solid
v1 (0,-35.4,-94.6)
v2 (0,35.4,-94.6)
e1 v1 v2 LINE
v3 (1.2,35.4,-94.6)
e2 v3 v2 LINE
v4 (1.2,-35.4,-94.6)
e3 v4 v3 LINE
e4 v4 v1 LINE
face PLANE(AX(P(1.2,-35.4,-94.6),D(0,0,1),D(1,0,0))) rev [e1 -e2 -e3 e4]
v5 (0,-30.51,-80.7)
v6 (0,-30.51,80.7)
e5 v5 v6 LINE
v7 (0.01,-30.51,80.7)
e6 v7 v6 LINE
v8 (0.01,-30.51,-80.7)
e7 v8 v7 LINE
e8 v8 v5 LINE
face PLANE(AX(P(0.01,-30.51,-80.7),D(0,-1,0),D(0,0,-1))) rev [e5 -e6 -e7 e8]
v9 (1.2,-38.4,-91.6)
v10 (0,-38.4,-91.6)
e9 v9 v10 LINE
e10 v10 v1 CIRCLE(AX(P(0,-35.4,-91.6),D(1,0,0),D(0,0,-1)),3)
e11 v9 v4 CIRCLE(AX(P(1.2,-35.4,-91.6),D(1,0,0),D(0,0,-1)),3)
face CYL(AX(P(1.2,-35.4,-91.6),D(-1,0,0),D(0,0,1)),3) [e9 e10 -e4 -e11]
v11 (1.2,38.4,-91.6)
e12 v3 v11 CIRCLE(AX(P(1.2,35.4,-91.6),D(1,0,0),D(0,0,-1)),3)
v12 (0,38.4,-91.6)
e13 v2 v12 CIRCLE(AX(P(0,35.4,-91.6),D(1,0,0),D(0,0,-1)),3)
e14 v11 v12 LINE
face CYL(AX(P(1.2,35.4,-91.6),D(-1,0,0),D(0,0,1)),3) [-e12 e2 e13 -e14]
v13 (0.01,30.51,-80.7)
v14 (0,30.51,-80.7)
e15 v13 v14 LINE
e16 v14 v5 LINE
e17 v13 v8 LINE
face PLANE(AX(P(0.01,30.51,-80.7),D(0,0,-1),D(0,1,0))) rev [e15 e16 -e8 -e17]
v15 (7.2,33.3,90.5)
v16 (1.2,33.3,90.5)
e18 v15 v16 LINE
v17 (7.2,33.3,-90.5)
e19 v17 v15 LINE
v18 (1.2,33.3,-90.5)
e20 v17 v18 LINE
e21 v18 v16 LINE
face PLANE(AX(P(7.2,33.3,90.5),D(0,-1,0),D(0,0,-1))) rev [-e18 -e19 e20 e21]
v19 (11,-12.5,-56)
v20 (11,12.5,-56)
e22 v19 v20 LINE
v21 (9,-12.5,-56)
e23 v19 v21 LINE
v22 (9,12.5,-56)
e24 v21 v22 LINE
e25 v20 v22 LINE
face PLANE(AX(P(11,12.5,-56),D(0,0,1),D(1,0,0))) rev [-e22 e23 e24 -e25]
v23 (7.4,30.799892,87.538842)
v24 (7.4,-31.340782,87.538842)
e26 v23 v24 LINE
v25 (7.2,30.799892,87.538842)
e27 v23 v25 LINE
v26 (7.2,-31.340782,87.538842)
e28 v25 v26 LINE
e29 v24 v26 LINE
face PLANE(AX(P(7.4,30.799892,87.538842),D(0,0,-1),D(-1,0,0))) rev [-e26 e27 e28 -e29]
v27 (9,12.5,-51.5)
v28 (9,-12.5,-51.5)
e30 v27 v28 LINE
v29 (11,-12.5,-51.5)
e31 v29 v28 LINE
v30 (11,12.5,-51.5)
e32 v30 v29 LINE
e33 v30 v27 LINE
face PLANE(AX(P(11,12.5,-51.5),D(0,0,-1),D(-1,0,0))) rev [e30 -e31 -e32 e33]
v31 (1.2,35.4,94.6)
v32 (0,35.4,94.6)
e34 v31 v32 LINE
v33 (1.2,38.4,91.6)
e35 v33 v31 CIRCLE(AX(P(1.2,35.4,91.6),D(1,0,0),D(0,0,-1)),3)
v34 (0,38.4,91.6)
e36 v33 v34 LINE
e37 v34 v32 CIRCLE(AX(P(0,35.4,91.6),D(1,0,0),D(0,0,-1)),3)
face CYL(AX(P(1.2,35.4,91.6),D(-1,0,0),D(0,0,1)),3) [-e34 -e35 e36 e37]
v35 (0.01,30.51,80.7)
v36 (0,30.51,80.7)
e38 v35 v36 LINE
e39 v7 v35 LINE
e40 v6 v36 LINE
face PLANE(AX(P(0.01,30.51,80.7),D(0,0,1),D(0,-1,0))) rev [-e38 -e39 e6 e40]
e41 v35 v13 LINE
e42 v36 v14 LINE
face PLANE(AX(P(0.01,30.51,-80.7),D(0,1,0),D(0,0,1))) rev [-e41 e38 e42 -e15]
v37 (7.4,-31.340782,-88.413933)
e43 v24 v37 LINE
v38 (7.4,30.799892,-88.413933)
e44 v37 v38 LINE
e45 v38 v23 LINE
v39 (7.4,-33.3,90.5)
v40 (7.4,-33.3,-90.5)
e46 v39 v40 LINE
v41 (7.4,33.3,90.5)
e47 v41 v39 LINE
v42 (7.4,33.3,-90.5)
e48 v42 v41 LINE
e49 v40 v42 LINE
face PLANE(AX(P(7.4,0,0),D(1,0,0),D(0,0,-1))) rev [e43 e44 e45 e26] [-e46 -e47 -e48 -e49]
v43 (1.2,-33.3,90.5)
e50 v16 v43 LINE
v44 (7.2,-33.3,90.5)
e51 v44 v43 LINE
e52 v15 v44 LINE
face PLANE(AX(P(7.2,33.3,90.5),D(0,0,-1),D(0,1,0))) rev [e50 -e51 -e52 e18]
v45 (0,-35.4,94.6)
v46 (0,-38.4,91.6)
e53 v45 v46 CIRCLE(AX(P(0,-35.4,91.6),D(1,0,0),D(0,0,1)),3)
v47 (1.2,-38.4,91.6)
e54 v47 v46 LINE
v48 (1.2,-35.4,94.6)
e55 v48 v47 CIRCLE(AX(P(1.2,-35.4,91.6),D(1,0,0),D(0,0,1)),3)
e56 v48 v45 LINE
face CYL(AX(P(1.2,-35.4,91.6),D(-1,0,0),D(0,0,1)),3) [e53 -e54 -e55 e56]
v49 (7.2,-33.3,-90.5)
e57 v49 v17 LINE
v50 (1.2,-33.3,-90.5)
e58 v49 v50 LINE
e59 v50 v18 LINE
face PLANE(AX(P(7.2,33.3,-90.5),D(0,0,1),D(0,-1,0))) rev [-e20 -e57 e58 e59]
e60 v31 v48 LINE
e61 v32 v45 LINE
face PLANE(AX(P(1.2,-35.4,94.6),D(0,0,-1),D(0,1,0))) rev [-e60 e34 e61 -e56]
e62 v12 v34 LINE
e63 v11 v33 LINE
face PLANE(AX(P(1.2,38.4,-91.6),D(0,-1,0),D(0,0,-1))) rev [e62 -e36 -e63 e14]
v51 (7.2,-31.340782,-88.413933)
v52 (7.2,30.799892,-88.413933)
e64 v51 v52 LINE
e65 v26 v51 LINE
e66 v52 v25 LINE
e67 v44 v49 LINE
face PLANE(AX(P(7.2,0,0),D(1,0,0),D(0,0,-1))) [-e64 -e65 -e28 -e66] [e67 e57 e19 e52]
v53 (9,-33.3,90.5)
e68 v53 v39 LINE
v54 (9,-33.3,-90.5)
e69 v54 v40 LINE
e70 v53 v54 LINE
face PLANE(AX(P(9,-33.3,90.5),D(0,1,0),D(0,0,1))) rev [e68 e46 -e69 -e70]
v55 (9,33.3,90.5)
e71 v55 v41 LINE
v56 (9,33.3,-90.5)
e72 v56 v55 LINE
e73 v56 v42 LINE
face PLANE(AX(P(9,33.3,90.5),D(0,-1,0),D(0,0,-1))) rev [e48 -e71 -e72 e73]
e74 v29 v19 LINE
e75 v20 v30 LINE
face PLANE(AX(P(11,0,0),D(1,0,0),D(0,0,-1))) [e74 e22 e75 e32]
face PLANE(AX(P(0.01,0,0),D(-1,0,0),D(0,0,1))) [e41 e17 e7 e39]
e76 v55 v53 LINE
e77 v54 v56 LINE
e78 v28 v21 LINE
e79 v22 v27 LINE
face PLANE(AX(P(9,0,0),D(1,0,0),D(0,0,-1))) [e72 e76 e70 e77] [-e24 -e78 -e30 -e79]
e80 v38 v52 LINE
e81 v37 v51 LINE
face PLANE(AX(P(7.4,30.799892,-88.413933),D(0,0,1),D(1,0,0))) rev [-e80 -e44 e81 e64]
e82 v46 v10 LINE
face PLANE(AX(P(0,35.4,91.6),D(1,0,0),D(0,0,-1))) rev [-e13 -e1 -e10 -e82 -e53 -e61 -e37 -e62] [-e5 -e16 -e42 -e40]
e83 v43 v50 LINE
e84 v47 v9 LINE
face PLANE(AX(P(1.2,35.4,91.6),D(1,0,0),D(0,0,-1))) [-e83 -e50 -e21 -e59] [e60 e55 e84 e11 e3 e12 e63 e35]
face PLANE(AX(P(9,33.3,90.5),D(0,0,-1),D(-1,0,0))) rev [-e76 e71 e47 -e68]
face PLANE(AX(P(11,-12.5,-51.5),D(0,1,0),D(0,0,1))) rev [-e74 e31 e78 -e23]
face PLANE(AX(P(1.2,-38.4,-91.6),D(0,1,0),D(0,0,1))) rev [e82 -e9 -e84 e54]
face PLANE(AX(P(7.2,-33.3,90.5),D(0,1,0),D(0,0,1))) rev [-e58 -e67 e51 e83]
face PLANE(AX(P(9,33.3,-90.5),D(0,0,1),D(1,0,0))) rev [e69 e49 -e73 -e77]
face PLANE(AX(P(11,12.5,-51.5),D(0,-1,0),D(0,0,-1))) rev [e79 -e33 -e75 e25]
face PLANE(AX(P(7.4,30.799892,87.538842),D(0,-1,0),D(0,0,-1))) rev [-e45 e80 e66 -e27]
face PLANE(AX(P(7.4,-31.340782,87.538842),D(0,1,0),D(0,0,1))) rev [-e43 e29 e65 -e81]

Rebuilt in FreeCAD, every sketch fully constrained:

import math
import FreeCAD as App
import Part
import Sketcher

V = App.Vector


def add_polygon(sketch, points):
    """Adds a closed chain of lines whose ends are joined by coincident constraints."""
    first, n = sketch.GeometryCount, len(points)
    for a, b in zip(points, points[1:] + points[:1]):
        sketch.addGeometry(Part.LineSegment(App.Vector(*a, 0), App.Vector(*b, 0)), False)
    for i in range(n):
        sketch.addConstraint(Sketcher.Constraint("Coincident", first + i, 2, first + (i + 1) % n, 1))

doc = App.newDocument("Part")
params = doc.addObject("Spreadsheet::Sheet", "Params")
for row, (alias, value) in enumerate([
    ("sketch1_radius", "3 mm"),
    ("sketch1_width", "70.8 mm"),
    ("sketch1_height", "183.2 mm"),
    ("pad1_length", "1.2 mm"),
    ("sketch2_height", "181 mm"),
    ("sketch2_width", "66.6 mm"),
    ("pad2_length", "6 mm"),
    ("pad3_length", "0.2 mm"),
    ("sketch4_height", "181 mm"),
    ("sketch4_width", "66.6 mm"),
    ("pad4_length", "1.6 mm"),
    ("sketch5_height", "161.4 mm"),
    ("sketch5_width", "61.02 mm"),
    ("pocket1_length", "0.01 mm"),
    ("sketch6_width", "25 mm"),
    ("sketch6_height", "4.5 mm"),
    ("pad5_length", "2 mm"),
], start=1):
    params.set(f"A{row}", alias)
    params.set(f"B{row}", "=" + value)
    params.setAlias(f"B{row}", alias)

body = doc.addObject("PartDesign::Body", "Body")

# Sketch on YZ plane
sketch1 = doc.addObject("Sketcher::SketchObject", "Sketch")
body.addObject(sketch1)
sketch1.AttachmentSupport = (doc.YZ_Plane, [""])
sketch1.MapMode = "FlatFace"
sketch1.addGeometry(Part.LineSegment(V(-38.4, 91.6, 0), V(-38.4, -91.6, 0)), False)
sketch1.addGeometry(Part.ArcOfCircle(Part.Circle(V(-35.4, -91.6, 0), V(0, 0, 1), 3), math.radians(180), math.radians(270)), False)
sketch1.addGeometry(Part.LineSegment(V(-35.4, -94.6, 0), V(35.4, -94.6, 0)), False)
sketch1.addGeometry(Part.ArcOfCircle(Part.Circle(V(35.4, -91.6, 0), V(0, 0, 1), 3), math.radians(-90), math.radians(0)), False)
sketch1.addGeometry(Part.LineSegment(V(38.4, -91.6, 0), V(38.4, 91.6, 0)), False)
sketch1.addGeometry(Part.ArcOfCircle(Part.Circle(V(35.4, 91.6, 0), V(0, 0, 1), 3), math.radians(0), math.radians(90)), False)
sketch1.addGeometry(Part.LineSegment(V(35.4, 94.6, 0), V(-35.4, 94.6, 0)), False)
sketch1.addGeometry(Part.ArcOfCircle(Part.Circle(V(-35.4, 91.6, 0), V(0, 0, 1), 3), math.radians(90), math.radians(180)), False)
sketch1.addConstraint(Sketcher.Constraint("Tangent", 0, 2, 1, 1))
sketch1.addConstraint(Sketcher.Constraint("Tangent", 1, 2, 2, 1))
sketch1.addConstraint(Sketcher.Constraint("Tangent", 2, 2, 3, 1))
sketch1.addConstraint(Sketcher.Constraint("Tangent", 3, 2, 4, 1))
sketch1.addConstraint(Sketcher.Constraint("Tangent", 4, 2, 5, 1))
sketch1.addConstraint(Sketcher.Constraint("Tangent", 5, 2, 6, 1))
sketch1.addConstraint(Sketcher.Constraint("Tangent", 6, 2, 7, 1))
sketch1.addConstraint(Sketcher.Constraint("Tangent", 7, 2, 0, 1))
sketch1.addConstraint(Sketcher.Constraint("Vertical", 0))
sketch1.addConstraint(Sketcher.Constraint("Horizontal", 2))
sketch1.addConstraint(Sketcher.Constraint("Vertical", 4))
sketch1.addConstraint(Sketcher.Constraint("Horizontal", 6))
sketch1.addConstraint(Sketcher.Constraint("Equal", 1, 3))
sketch1.addConstraint(Sketcher.Constraint("Equal", 3, 5))
sketch1.addConstraint(Sketcher.Constraint("Equal", 5, 7))
sketch1.addConstraint(Sketcher.Constraint("Symmetric", 1, 3, 5, 3, -1, 1))
sketch1.addConstraint(Sketcher.Constraint("Radius", 1, 3.0))
sketch1.addConstraint(Sketcher.Constraint("DistanceX", 2, 1, 2, 2, 70.8))
sketch1.addConstraint(Sketcher.Constraint("DistanceY", 0, 2, 0, 1, 183.2))
sketch1.setExpression("Constraints[16]", "Params.sketch1_radius")
sketch1.setExpression("Constraints[17]", "Params.sketch1_width")
sketch1.setExpression("Constraints[18]", "Params.sketch1_height")
pad1 = doc.addObject("PartDesign::Pad", "Pad")
body.addObject(pad1)
pad1.Profile = sketch1
pad1.setExpression("Length", "Params.pad1_length")

# Sketch on YZ plane
sketch2 = doc.addObject("Sketcher::SketchObject", "Sketch001")
body.addObject(sketch2)
sketch2.AttachmentSupport = (doc.YZ_Plane, [""])
sketch2.MapMode = "FlatFace"
sketch2.AttachmentOffset = App.Placement(V(0, 0, 1.2), App.Rotation())
add_polygon(sketch2, [(33.3, 90.5), (-33.3, 90.5), (-33.3, -90.5), (33.3, -90.5)])  # lines 0-3
sketch2.addConstraint(Sketcher.Constraint("Horizontal", 0))
sketch2.addConstraint(Sketcher.Constraint("Vertical", 1))
sketch2.addConstraint(Sketcher.Constraint("Horizontal", 2))
sketch2.addConstraint(Sketcher.Constraint("Vertical", 3))
sketch2.addConstraint(Sketcher.Constraint("Symmetric", 0, 2, 2, 2, -1, 1))
sketch2.addConstraint(Sketcher.Constraint("DistanceY", 1, 2, 1, 1, 181.0))
sketch2.addConstraint(Sketcher.Constraint("DistanceX", 0, 2, 0, 1, 66.6))
sketch2.setExpression("Constraints[9]", "Params.sketch2_height")
sketch2.setExpression("Constraints[10]", "Params.sketch2_width")
pad2 = doc.addObject("PartDesign::Pad", "Pad001")
body.addObject(pad2)
pad2.Profile = sketch2
pad2.setExpression("Length", "Params.pad2_length")

# Sketch on YZ plane
sketch3 = doc.addObject("Sketcher::SketchObject", "Sketch002")
body.addObject(sketch3)
sketch3.AttachmentSupport = (doc.YZ_Plane, [""])
sketch3.MapMode = "FlatFace"
sketch3.AttachmentOffset = App.Placement(V(0, 0, 7.2), App.Rotation())
add_polygon(sketch3, [(30.799892, 87.538842), (-31.340782, 87.538842), (-31.340782, -88.413933), (30.799892, -88.413933)])  # lines 0-3
sketch3.addConstraint(Sketcher.Constraint("Horizontal", 0))
sketch3.addConstraint(Sketcher.Constraint("Vertical", 1))
sketch3.addConstraint(Sketcher.Constraint("Horizontal", 2))
sketch3.addConstraint(Sketcher.Constraint("Vertical", 3))
sketch3.addConstraint(Sketcher.Constraint("DistanceX", 0, 2, 0, 1, 62.140674))
sketch3.addConstraint(Sketcher.Constraint("DistanceY", 1, 2, 1, 1, 175.952775))
sketch3.addConstraint(Sketcher.Constraint("DistanceY", -1, 1, 0, 2, 87.538842))
sketch3.addConstraint(Sketcher.Constraint("DistanceX", 0, 2, -1, 1, 31.340782))
pad3 = doc.addObject("PartDesign::Pad", "Pad002")
body.addObject(pad3)
pad3.Profile = sketch3
pad3.setExpression("Length", "Params.pad3_length")

# Sketch on YZ plane
sketch4 = doc.addObject("Sketcher::SketchObject", "Sketch003")
body.addObject(sketch4)
sketch4.AttachmentSupport = (doc.YZ_Plane, [""])
sketch4.MapMode = "FlatFace"
sketch4.AttachmentOffset = App.Placement(V(0, 0, 7.4), App.Rotation())
add_polygon(sketch4, [(33.3, 90.5), (-33.3, 90.5), (-33.3, -90.5), (33.3, -90.5)])  # lines 0-3
sketch4.addConstraint(Sketcher.Constraint("Horizontal", 0))
sketch4.addConstraint(Sketcher.Constraint("Vertical", 1))
sketch4.addConstraint(Sketcher.Constraint("Horizontal", 2))
sketch4.addConstraint(Sketcher.Constraint("Vertical", 3))
sketch4.addConstraint(Sketcher.Constraint("Symmetric", 0, 2, 2, 2, -1, 1))
sketch4.addConstraint(Sketcher.Constraint("DistanceY", 1, 2, 1, 1, 181.0))
sketch4.addConstraint(Sketcher.Constraint("DistanceX", 0, 2, 0, 1, 66.6))
sketch4.setExpression("Constraints[9]", "Params.sketch4_height")
sketch4.setExpression("Constraints[10]", "Params.sketch4_width")
pad4 = doc.addObject("PartDesign::Pad", "Pad003")
body.addObject(pad4)
pad4.Profile = sketch4
pad4.setExpression("Length", "Params.pad4_length")

# Sketch on YZ plane
sketch5 = doc.addObject("Sketcher::SketchObject", "Sketch004")
body.addObject(sketch5)
sketch5.AttachmentSupport = (doc.YZ_Plane, [""])
sketch5.MapMode = "FlatFace"
add_polygon(sketch5, [(30.51, -80.7), (-30.51, -80.7), (-30.51, 80.7), (30.51, 80.7)])  # lines 0-3
sketch5.addConstraint(Sketcher.Constraint("Horizontal", 0))
sketch5.addConstraint(Sketcher.Constraint("Vertical", 1))
sketch5.addConstraint(Sketcher.Constraint("Horizontal", 2))
sketch5.addConstraint(Sketcher.Constraint("Vertical", 3))
sketch5.addConstraint(Sketcher.Constraint("Symmetric", 0, 2, 2, 2, -1, 1))
sketch5.addConstraint(Sketcher.Constraint("DistanceY", 1, 1, 1, 2, 161.4))
sketch5.addConstraint(Sketcher.Constraint("DistanceX", 0, 2, 0, 1, 61.02))
sketch5.setExpression("Constraints[9]", "Params.sketch5_height")
sketch5.setExpression("Constraints[10]", "Params.sketch5_width")
pocket1 = doc.addObject("PartDesign::Pocket", "Pocket")
body.addObject(pocket1)
pocket1.Profile = sketch5
pocket1.setExpression("Length", "Params.pocket1_length")
pocket1.Reversed = True

# Sketch on YZ plane
sketch6 = doc.addObject("Sketcher::SketchObject", "Sketch005")
body.addObject(sketch6)
sketch6.AttachmentSupport = (doc.YZ_Plane, [""])
sketch6.MapMode = "FlatFace"
sketch6.AttachmentOffset = App.Placement(V(0, 0, 9), App.Rotation())
add_polygon(sketch6, [(12.5, -51.5), (-12.5, -51.5), (-12.5, -56), (12.5, -56)])  # lines 0-3
sketch6.addConstraint(Sketcher.Constraint("Horizontal", 0))
sketch6.addConstraint(Sketcher.Constraint("Vertical", 1))
sketch6.addConstraint(Sketcher.Constraint("Horizontal", 2))
sketch6.addConstraint(Sketcher.Constraint("Vertical", 3))
sketch6.addConstraint(Sketcher.Constraint("DistanceX", 0, 2, 0, 1, 25.0))
sketch6.addConstraint(Sketcher.Constraint("DistanceY", 1, 2, 1, 1, 4.5))
sketch6.addConstraint(Sketcher.Constraint("DistanceY", 1, 2, -1, 1, 56.0))
sketch6.addConstraint(Sketcher.Constraint("DistanceX", 0, 2, -1, 1, 12.5))
sketch6.setExpression("Constraints[8]", "Params.sketch6_width")
sketch6.setExpression("Constraints[9]", "Params.sketch6_height")
pad5 = doc.addObject("PartDesign::Pad", "Pad004")
body.addObject(pad5)
pad5.Profile = sketch6
pad5.setExpression("Length", "Params.pad5_length")

doc.recompute()
